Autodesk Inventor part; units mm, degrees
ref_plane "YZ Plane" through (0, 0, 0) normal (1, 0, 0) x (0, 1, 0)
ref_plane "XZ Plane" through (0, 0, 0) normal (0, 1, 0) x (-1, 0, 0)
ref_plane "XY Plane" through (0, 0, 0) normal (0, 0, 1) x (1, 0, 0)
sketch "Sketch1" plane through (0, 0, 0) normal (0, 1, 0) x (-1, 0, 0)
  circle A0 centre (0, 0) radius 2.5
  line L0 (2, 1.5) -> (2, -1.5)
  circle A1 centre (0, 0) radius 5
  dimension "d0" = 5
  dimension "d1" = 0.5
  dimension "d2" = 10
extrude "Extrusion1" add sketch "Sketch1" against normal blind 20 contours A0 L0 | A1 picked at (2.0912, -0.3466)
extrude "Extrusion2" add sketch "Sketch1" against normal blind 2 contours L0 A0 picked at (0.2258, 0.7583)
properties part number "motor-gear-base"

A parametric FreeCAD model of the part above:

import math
import FreeCAD as App
import Part
import Sketcher

V = App.Vector

doc = App.newDocument("Part")
params = doc.addObject("Spreadsheet::Sheet", "Params")
for row, (alias, value) in enumerate([
    ("sketch1_diameter", "10 mm"),
    ("sketch1_radius", "2.5 mm"),
    ("sketch1_height", "3 mm"),
    ("pad1_length", "20 mm"),
    ("sketch2_radius", "2.5 mm"),
    ("sketch2_height", "3 mm"),
    ("pad2_length", "2 mm"),
], start=1):
    params.set(f"A{row}", alias)
    params.set(f"B{row}", "=" + value)
    params.setAlias(f"B{row}", alias)

body = doc.addObject("PartDesign::Body", "Body")

# Sketch on XZ plane
sketch1 = body.newObject("Sketcher::SketchObject", "Sketch")
sketch1.AttachmentSupport = (doc.getObject("XZ_Plane"), [""])
sketch1.MapMode = "FlatFace"
sketch1.addGeometry([
    Part.Circle(V(0, 0, 0), V(0, 0, 1), 5),
    Part.LineSegment(V(-2, 1.5, 0), V(-2, -1.5, 0)),
    Part.ArcOfCircle(Part.Circle(V(0, 0, 0), V(0, 0, 1), 2.5), math.radians(-143.130102), math.radians(143.130102)),
], False)
sketch1.addConstraint([
    Sketcher.Constraint("Coincident", 1, 1, 2, 2),
    Sketcher.Constraint("Coincident", 2, 1, 1, 2),
    Sketcher.Constraint("Vertical", 1),
    Sketcher.Constraint("Coincident", 0, 3, -1, 1),
    Sketcher.Constraint("Coincident", 2, 3, -1, 1),
    Sketcher.Constraint("Diameter", 0, 10.0),
    Sketcher.Constraint("Radius", 2, 2.5),
    Sketcher.Constraint("DistanceY", 1, 2, 1, 1, 3.0),
])
sketch1.setExpression("Constraints[5]", "Params.sketch1_diameter")
sketch1.setExpression("Constraints[6]", "Params.sketch1_radius")
sketch1.setExpression("Constraints[7]", "Params.sketch1_height")
pad1 = body.newObject("PartDesign::Pad", "Pad")
pad1.Profile = sketch1
pad1.setExpression("Length", "Params.pad1_length")

# Sketch on XZ plane
sketch2 = body.newObject("Sketcher::SketchObject", "Sketch001")
sketch2.AttachmentSupport = (doc.getObject("XZ_Plane"), [""])
sketch2.MapMode = "FlatFace"
sketch2.addGeometry([
    Part.LineSegment(V(-2, -1.5, 0), V(-2, 1.5, 0)),
    Part.ArcOfCircle(Part.Circle(V(0, 0, 0), V(0, 0, 1), 2.5), math.radians(-143.130102), math.radians(143.130102)),
], False)
sketch2.addConstraint([
    Sketcher.Constraint("Coincident", 0, 1, 1, 1),
    Sketcher.Constraint("Coincident", 1, 2, 0, 2),
    Sketcher.Constraint("Vertical", 0),
    Sketcher.Constraint("Coincident", 1, 3, -1, 1),
    Sketcher.Constraint("Radius", 1, 2.5),
    Sketcher.Constraint("DistanceY", 0, 1, 0, 2, 3.0),
])
sketch2.setExpression("Constraints[4]", "Params.sketch2_radius")
sketch2.setExpression("Constraints[5]", "Params.sketch2_height")
pad2 = body.newObject("PartDesign::Pad", "Pad001")
pad2.Profile = sketch2
pad2.setExpression("Length", "Params.pad2_length")

doc.recompute()
